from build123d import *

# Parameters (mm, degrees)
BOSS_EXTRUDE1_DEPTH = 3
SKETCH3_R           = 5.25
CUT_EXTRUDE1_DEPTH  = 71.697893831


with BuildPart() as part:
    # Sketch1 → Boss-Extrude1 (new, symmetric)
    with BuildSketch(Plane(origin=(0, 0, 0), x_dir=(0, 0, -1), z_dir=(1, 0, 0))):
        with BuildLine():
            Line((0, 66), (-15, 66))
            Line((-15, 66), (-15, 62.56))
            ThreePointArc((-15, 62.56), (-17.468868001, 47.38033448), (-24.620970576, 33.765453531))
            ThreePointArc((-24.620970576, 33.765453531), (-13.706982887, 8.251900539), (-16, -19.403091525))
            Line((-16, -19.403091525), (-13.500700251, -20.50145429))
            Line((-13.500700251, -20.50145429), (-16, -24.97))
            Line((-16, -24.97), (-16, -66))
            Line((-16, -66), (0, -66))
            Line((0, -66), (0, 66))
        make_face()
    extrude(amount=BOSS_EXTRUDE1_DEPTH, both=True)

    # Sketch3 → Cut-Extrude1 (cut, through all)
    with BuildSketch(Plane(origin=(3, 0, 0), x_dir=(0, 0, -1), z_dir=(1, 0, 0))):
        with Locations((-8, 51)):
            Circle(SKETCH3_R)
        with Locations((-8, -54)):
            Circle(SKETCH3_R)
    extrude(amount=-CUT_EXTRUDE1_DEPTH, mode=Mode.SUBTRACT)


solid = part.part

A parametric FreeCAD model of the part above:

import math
import FreeCAD as App
import Part
import Sketcher

V = App.Vector
Q = App.Units.Quantity

doc = App.newDocument("Part")
body = doc.addObject("PartDesign::Body", "Body")

sketch1 = body.newObject("Sketcher::SketchObject", "Sketch")
sketch1.AttachmentSupport = (doc.getObject("YZ_Plane"), [""])
sketch1.MapMode = "FlatFace"
sketch1.addGeometry([
    Part.LineSegment(V(66, 0, 0), V(66, 15, 0)),
    Part.LineSegment(V(66, 15, 0), V(62.6, 15, 0)),
    Part.ArcOfCircle(Part.Circle(V(62.6, 62.9, 0), V(0, 0, 1), 47.9), math.radians(-127), math.radians(-90)),
    Part.ArcOfCircle(Part.Circle(V(-1, 70.5, 0), V(0, 0, 1), 57.6), math.radians(-109), math.radians(-53)),
    Part.LineSegment(V(-19.4, 16, 0), V(-20.5, 13.5, 0)),
    Part.LineSegment(V(-20.5, 13.5, 0), V(-25, 16, 0)),
    Part.LineSegment(V(-25, 16, 0), V(-66, 16, 0)),
    Part.LineSegment(V(-66, 16, 0), V(-66, 0, 0)),
    Part.LineSegment(V(-66, 0, 0), V(66, 0, 0)),
], False)
sketch1.addConstraint([
    Sketcher.Constraint("Coincident", 0, 2, 1, 1),
    Sketcher.Constraint("Tangent", 1, 2, 2, 2),
    Sketcher.Constraint("Coincident", 2, 1, 3, 2),
    Sketcher.Constraint("Coincident", 3, 1, 4, 1),
    Sketcher.Constraint("Coincident", 4, 2, 5, 1),
    Sketcher.Constraint("Coincident", 5, 2, 6, 1),
    Sketcher.Constraint("Coincident", 6, 2, 7, 1),
    Sketcher.Constraint("Coincident", 7, 2, 8, 1),
    Sketcher.Constraint("Coincident", 8, 2, 0, 1),
    Sketcher.Constraint("Vertical", 0),
    Sketcher.Constraint("Horizontal", 1),
    Sketcher.Constraint("Horizontal", 6),
    Sketcher.Constraint("Vertical", 7),
    Sketcher.Constraint("Horizontal", 8),
    Sketcher.Constraint("Symmetric", 7, 2, 8, 2, -1, 1),
    Sketcher.Constraint("Horizontal", 3, 1, 5, 2),
    Sketcher.Constraint("Radius", 2, Q("47.9 mm")),
    Sketcher.Constraint("DistanceX", 8, 1, 8, 2, Q("132 mm")),
    Sketcher.Constraint("DistanceY", 0, 1, 0, 2, Q("15 mm")),
    Sketcher.Constraint("DistanceY", 7, 2, 7, 1, Q("16 mm")),
    Sketcher.Constraint("Radius", 3, Q("57.555 mm")),
    Sketcher.Constraint("DistanceX", 1, 2, 1, 1, Q("3.44 mm")),
    Sketcher.Constraint("DistanceX", 6, 2, 6, 1, Q("41.03 mm")),
    Sketcher.Constraint("Distance", 4, Q("2.73 mm")),
    Sketcher.Constraint("Distance", 5, Q("5.12 mm")),
    Sketcher.Constraint("DistanceX", 3, 3, -1, 1, Q("0.96 mm")),
    Sketcher.Constraint("DistanceY", -1, 1, 3, 3, Q("70.52 mm")),
])
pad1 = body.newObject("PartDesign::Pad", "Pad")
pad1.Profile = sketch1
pad1.Length = 6
pad1.Midplane = True

sketch2 = body.newObject("Sketcher::SketchObject", "Sketch001")
sketch2.AttachmentSupport = (doc.getObject("YZ_Plane"), [""])
sketch2.MapMode = "FlatFace"
sketch2.AttachmentOffset = App.Placement(V(0, 0, 3), App.Rotation())
sketch2.addGeometry([
    Part.Circle(V(51, 8, 0), V(0, 0, 1), 5),
    Part.Circle(V(-54, 8, 0), V(0, 0, 1), 5),
], False)
sketch2.addConstraint([
    Sketcher.Constraint("Equal", 0, 1),
    Sketcher.Constraint("Horizontal", 0, 3, 1, 3),
    Sketcher.Constraint("Diameter", 0, Q("10.5 mm")),
    Sketcher.Constraint("DistanceX", -1, 1, 0, 3, Q("51 mm")),
    Sketcher.Constraint("DistanceY", -1, 1, 0, 3, Q("8 mm")),
    Sketcher.Constraint("DistanceX", 1, 3, -1, 1, Q("54 mm")),
])
pocket1 = body.newObject("PartDesign::Pocket", "Pocket")
pocket1.Profile = sketch2
pocket1.Type = "ThroughAll"

doc.recompute()
